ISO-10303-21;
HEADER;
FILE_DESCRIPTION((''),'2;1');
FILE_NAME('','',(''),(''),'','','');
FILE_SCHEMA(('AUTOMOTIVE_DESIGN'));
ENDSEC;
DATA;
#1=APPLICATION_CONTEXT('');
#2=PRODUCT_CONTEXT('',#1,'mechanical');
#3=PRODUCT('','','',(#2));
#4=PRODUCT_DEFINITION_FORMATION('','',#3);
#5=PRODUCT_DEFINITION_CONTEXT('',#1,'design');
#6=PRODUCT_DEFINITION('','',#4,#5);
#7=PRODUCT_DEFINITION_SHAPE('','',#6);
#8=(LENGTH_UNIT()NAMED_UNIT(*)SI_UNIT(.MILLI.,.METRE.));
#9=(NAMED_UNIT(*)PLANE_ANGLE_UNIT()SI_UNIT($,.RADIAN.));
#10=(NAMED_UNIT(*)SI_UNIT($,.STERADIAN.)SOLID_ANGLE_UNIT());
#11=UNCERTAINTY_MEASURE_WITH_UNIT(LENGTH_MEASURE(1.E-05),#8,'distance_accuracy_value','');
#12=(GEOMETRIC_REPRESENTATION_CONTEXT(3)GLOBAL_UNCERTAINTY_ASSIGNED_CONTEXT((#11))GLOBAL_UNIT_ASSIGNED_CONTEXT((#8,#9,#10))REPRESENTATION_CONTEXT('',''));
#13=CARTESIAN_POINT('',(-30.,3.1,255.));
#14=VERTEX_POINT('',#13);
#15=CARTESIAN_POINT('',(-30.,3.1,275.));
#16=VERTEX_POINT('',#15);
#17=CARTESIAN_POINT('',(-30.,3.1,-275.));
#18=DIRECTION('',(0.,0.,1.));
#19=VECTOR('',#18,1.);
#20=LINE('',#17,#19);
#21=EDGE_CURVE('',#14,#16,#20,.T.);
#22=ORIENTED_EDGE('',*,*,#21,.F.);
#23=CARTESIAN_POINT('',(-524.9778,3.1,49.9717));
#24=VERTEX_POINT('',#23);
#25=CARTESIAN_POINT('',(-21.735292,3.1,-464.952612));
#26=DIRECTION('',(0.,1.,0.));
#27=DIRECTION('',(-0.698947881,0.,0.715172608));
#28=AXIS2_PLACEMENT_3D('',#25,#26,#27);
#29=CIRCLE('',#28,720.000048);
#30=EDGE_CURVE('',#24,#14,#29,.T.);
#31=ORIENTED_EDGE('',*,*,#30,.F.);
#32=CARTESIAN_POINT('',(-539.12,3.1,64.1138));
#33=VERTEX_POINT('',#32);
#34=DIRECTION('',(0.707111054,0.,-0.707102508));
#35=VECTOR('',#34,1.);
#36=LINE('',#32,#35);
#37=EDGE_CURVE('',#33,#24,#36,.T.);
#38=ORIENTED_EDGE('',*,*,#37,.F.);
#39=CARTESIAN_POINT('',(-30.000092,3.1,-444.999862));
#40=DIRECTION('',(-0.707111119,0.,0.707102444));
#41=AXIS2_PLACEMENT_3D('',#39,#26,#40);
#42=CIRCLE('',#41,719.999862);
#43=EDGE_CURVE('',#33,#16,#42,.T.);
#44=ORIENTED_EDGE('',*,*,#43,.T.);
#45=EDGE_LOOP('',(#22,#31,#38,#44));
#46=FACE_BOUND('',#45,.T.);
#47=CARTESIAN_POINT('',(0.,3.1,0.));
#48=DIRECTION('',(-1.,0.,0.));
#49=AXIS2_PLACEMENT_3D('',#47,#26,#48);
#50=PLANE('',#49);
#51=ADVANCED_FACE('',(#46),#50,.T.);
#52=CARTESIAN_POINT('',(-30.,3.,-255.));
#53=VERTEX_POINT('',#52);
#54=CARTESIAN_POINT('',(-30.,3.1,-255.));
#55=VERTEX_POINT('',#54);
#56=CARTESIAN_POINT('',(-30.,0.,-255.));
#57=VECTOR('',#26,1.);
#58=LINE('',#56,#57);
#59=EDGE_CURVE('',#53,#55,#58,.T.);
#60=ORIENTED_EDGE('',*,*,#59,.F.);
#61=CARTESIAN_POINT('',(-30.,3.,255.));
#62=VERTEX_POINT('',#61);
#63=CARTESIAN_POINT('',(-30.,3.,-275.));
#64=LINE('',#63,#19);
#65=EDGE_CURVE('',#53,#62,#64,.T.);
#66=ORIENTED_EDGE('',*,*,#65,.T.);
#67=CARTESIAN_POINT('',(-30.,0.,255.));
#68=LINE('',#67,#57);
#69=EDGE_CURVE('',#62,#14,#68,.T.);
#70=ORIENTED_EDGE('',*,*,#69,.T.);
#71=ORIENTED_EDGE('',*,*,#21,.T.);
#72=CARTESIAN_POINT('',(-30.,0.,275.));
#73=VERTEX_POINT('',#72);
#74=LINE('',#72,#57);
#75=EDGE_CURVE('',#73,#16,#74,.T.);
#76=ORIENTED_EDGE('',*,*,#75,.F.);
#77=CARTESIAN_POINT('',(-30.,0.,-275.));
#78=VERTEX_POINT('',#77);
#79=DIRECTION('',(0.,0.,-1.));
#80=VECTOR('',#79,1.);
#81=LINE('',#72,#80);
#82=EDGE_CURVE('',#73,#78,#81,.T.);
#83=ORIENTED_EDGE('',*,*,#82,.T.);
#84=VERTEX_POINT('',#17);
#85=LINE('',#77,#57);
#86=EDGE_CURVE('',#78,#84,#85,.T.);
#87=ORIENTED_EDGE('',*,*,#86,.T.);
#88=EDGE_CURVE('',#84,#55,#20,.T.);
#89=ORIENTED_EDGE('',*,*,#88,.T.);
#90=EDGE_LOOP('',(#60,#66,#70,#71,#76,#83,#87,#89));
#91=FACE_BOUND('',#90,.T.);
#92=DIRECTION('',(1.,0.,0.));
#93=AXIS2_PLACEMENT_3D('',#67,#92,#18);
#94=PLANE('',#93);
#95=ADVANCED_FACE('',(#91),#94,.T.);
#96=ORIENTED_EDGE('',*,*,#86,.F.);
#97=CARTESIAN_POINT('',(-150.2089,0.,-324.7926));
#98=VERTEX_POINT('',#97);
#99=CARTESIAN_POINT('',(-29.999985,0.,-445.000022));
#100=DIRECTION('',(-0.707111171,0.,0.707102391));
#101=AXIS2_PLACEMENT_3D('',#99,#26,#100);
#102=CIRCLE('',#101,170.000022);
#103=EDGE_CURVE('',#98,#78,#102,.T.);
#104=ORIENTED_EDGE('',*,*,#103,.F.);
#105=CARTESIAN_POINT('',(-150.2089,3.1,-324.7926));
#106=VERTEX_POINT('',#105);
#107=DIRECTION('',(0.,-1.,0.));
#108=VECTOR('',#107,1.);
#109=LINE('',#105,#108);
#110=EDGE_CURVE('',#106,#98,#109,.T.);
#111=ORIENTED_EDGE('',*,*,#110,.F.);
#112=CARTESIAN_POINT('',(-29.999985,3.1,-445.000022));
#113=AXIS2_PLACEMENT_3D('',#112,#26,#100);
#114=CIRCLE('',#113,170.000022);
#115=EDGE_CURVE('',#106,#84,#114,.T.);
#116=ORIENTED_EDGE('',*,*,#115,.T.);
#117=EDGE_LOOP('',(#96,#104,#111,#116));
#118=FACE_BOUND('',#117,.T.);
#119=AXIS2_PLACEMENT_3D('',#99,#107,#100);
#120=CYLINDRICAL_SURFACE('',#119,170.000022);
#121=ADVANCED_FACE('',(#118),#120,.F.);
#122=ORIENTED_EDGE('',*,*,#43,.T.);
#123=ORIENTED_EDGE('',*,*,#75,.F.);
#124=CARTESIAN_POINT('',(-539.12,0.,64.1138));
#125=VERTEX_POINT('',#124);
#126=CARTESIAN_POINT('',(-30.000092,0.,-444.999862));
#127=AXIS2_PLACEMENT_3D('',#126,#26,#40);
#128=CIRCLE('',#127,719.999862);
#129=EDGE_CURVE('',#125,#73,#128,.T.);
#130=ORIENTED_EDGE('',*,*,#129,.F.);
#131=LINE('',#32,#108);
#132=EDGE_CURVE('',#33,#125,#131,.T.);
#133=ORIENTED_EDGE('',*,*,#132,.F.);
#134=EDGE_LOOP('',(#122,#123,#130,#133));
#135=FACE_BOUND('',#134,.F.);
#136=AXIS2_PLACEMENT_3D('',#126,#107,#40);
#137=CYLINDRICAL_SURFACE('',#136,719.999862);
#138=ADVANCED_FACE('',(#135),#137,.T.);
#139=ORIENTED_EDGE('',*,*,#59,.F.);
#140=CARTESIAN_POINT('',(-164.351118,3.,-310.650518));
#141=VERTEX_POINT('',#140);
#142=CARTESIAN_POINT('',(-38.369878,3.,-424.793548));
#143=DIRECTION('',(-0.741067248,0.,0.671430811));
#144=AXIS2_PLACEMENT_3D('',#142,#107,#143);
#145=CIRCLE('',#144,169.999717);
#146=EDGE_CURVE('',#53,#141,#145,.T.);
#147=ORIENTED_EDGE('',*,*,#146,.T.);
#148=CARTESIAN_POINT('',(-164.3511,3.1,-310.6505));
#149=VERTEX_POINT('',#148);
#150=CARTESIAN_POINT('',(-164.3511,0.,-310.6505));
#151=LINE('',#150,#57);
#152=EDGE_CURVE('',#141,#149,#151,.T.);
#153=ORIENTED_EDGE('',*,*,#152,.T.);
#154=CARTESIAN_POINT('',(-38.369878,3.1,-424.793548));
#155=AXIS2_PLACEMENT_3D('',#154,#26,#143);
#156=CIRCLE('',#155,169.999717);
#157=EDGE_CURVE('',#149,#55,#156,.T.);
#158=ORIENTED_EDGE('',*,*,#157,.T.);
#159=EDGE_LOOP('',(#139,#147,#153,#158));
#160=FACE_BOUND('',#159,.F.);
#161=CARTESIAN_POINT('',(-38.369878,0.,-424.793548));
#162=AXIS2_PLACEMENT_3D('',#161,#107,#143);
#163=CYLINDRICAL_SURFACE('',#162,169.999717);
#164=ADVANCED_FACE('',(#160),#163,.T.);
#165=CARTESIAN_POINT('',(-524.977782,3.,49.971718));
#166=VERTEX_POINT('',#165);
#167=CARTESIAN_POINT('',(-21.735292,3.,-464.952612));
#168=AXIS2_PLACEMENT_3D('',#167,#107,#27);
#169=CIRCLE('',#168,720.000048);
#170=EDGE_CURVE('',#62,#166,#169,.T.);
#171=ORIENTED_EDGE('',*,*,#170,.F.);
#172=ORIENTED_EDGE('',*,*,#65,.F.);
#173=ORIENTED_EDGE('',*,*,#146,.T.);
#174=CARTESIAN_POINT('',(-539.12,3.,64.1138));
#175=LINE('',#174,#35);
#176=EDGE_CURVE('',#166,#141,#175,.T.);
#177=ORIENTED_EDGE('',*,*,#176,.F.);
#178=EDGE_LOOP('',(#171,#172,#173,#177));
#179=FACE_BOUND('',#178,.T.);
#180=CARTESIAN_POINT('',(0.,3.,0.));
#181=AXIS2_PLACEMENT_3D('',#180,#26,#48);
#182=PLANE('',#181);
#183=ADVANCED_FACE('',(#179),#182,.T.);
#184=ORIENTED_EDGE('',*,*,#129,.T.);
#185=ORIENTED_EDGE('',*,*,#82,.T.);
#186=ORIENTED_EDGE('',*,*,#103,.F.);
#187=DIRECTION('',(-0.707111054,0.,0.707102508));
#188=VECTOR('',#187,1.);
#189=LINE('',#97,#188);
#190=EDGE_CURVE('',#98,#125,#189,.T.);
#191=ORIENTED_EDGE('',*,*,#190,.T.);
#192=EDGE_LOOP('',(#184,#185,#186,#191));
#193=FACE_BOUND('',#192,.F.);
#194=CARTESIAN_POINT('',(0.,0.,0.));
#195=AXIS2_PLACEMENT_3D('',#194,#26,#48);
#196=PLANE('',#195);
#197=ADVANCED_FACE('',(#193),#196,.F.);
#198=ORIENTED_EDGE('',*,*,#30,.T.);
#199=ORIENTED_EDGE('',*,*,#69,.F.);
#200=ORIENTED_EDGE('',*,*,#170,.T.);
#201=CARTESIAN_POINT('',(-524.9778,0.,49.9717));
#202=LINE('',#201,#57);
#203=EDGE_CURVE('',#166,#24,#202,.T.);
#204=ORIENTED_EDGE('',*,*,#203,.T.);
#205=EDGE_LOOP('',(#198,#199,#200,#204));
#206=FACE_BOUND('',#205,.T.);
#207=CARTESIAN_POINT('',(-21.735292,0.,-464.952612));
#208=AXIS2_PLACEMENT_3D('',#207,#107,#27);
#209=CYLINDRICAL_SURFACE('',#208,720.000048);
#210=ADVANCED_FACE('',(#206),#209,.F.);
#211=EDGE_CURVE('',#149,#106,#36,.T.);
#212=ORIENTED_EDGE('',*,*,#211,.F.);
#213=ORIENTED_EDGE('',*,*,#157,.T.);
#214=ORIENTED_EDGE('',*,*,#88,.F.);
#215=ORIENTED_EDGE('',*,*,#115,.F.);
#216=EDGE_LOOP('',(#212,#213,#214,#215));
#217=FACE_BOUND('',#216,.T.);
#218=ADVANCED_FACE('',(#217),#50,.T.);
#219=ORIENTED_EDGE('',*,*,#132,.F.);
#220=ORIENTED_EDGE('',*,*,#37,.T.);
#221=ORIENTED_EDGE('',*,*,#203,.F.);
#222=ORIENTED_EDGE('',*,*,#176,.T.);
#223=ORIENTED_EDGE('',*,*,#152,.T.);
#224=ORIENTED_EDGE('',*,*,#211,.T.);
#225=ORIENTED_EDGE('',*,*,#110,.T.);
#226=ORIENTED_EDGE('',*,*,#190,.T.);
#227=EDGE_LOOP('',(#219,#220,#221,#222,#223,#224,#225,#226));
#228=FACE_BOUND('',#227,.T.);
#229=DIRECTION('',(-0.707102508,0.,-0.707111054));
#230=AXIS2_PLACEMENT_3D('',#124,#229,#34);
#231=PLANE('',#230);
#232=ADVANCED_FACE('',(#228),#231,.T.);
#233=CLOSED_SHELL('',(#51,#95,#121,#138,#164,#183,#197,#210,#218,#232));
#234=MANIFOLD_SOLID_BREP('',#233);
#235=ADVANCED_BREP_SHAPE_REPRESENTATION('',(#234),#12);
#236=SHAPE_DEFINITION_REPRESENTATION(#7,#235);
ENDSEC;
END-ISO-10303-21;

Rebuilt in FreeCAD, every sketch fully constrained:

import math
import FreeCAD as App
import Part
import Sketcher
Q = App.Units.Quantity

doc = App.newDocument("Part")
body = doc.addObject("PartDesign::Body", "Body")

# Sketch on XZ plane
sketch1 = body.newObject("Sketcher::SketchObject", "Sketch")
sketch1.AttachmentSupport = (doc.getObject("XZ_Plane"), [""])
sketch1.MapMode = "FlatFace"
sketch1.addGeometry([
    Part.ArcOfCircle(Part.Circle(App.Vector(-30, -445, 0), App.Vector(0, 0, 1), 720.000025), math.radians(90), math.radians(135.000349)),
    Part.LineSegment(App.Vector(-30, 275, 0), App.Vector(-30, -275, 0)),
    Part.ArcOfCircle(Part.Circle(App.Vector(-30, -445, 0), App.Vector(0, 0, 1), 169.999996), math.radians(90), math.radians(135.000357)),
    Part.LineSegment(App.Vector(-150.2089, -324.7926, 0), App.Vector(-539.12, 64.1138, 0)),
], False)
sketch1.addConstraint([
    Sketcher.Constraint("Coincident", 0, 1, 1, 1),
    Sketcher.Constraint("Coincident", 1, 2, 2, 1),
    Sketcher.Constraint("Coincident", 2, 2, 3, 1),
    Sketcher.Constraint("Coincident", 3, 2, 0, 2),
    Sketcher.Constraint("Vertical", 1),
    Sketcher.Constraint("Coincident", 2, 3, 0, 3),
    Sketcher.Constraint("Radius", 0, 720.0),
    Sketcher.Constraint("Radius", 2, 170.0),
    Sketcher.Constraint("DistanceX", 0, 3, -1, 1, 30.0),
    Sketcher.Constraint("DistanceX", 1, 2, -1, 1, 30.0),
    Sketcher.Constraint("DistanceX", 3, 2, -1, 1, 539.12),
    Sketcher.Constraint("Angle", 3, Q("135.0003 deg")),
    Sketcher.Constraint("DistanceY", 0, 3, -1, 1, 445.0),
])
pad1 = body.newObject("PartDesign::Pad", "Pad")
pad1.Profile = sketch1
pad1.Length = 3
pad1.Reversed = True

# Sketch on XZ plane
sketch2 = body.newObject("Sketcher::SketchObject", "Sketch001")
sketch2.AttachmentSupport = (doc.getObject("XZ_Plane"), [""])
sketch2.MapMode = "FlatFace"
sketch2.addGeometry([
    Part.ArcOfCircle(Part.Circle(App.Vector(-30, -445, 0), App.Vector(0, 0, 1), 720.000025), math.radians(90), math.radians(135.000349)),  # 0
    Part.LineSegment(App.Vector(-30, 275, 0), App.Vector(-30, 255, 0)),  # 1
    Part.ArcOfCircle(Part.Circle(App.Vector(-21.7353, -464.9526, 0), App.Vector(0, 0, 1), 720.000034), math.radians(90.657698), math.radians(134.342653)),  # 2
    Part.LineSegment(App.Vector(-524.977765, 49.971735, 0), App.Vector(-539.12, 64.1138, 0)),  # 3
    Part.ArcOfCircle(Part.Circle(App.Vector(-38.3697, -424.7938, 0), App.Vector(0, 0, 1), 170.000018), math.radians(87.177985), math.radians(137.822385)),  # 4
    Part.LineSegment(App.Vector(-30, -255, 0), App.Vector(-30, -275, 0)),  # 5
    Part.ArcOfCircle(Part.Circle(App.Vector(-30, -445, 0), App.Vector(0, 0, 1), 169.999996), math.radians(90), math.radians(135.000357)),  # 6
    Part.LineSegment(App.Vector(-150.2089, -324.7926, 0), App.Vector(-164.351135, -310.650535, 0)),  # 7
], False)
sketch2.addConstraint([
    Sketcher.Constraint("Coincident", 0, 1, 1, 1),
    Sketcher.Constraint("Coincident", 1, 2, 2, 1),
    Sketcher.Constraint("Coincident", 2, 2, 3, 1),
    Sketcher.Constraint("Coincident", 3, 2, 0, 2),
    Sketcher.Constraint("Coincident", 4, 1, 5, 1),
    Sketcher.Constraint("Coincident", 5, 2, 6, 1),
    Sketcher.Constraint("Coincident", 6, 2, 7, 1),
    Sketcher.Constraint("Coincident", 7, 2, 4, 2),
    Sketcher.Constraint("Vertical", 1),
    Sketcher.Constraint("Vertical", 5),
    Sketcher.Constraint("Coincident", 6, 3, 0, 3),
    Sketcher.Constraint("Equal", 0, 2),
    Sketcher.Constraint("Equal", 4, 6),
    Sketcher.Constraint("Symmetric", 1, 2, 4, 1, -1),
    Sketcher.Constraint("Parallel", 3, 7),
    Sketcher.Constraint("Equal", 1, 5),
    Sketcher.Constraint("Equal", 3, 7),
    Sketcher.Constraint("Radius", 0, 720.0),
    Sketcher.Constraint("Radius", 4, 170.0),
    Sketcher.Constraint("DistanceY", 1, 2, 1, 1, 20.0),
    Sketcher.Constraint("Distance", 3, 20.0),
    Sketcher.Constraint("DistanceX", 0, 3, -1, 1, 30.0),
    Sketcher.Constraint("DistanceX", 1, 2, -1, 1, 30.0),
    Sketcher.Constraint("DistanceX", 3, 2, -1, 1, 539.12),
    Sketcher.Constraint("Angle", 3, Q("135.0003 deg")),
    Sketcher.Constraint("DistanceX", 6, 2, -1, 1, 150.209),
])
pad2 = body.newObject("PartDesign::Pad", "Pad001")
pad2.Profile = sketch2
pad2.Length = 3.1
pad2.Reversed = True

doc.recompute()
